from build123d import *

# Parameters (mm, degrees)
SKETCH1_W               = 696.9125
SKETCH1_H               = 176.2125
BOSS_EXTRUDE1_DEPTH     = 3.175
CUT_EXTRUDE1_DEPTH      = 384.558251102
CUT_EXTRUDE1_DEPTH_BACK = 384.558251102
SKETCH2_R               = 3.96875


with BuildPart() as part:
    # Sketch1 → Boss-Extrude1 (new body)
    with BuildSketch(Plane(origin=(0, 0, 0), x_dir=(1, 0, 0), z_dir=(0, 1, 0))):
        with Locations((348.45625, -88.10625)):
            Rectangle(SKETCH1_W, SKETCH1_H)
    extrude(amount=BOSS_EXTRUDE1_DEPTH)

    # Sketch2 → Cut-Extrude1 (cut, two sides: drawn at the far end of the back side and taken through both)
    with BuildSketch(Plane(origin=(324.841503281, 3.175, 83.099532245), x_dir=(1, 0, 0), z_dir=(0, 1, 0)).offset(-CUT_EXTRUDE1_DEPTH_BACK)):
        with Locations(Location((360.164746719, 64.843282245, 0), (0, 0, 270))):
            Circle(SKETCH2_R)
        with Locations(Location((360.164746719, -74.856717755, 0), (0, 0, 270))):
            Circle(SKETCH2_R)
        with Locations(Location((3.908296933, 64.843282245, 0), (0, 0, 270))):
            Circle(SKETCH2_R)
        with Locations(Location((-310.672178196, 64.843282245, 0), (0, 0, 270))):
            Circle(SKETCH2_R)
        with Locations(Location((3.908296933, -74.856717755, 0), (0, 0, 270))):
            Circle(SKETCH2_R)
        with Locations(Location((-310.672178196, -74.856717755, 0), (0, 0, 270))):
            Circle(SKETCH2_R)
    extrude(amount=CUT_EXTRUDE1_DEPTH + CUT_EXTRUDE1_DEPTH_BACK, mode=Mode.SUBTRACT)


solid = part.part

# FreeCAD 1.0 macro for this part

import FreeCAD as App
import Part
import Sketcher
Q = App.Units.Quantity

doc = App.newDocument("Part")
body = doc.addObject("PartDesign::Body", "Body")

# Sketch on XZ plane
sketch1 = body.newObject("Sketcher::SketchObject", "Sketch")
sketch1.AttachmentSupport = (doc.getObject("XZ_Plane"), [""])
sketch1.MapMode = "FlatFace"
sketch1.addGeometry([
    Part.LineSegment(App.Vector(0, 0, 0), App.Vector(0, 176, 0)),
    Part.LineSegment(App.Vector(0, 176, 0), App.Vector(697, 176, 0)),
    Part.LineSegment(App.Vector(697, 176, 0), App.Vector(697, 0, 0)),
    Part.LineSegment(App.Vector(697, 0, 0), App.Vector(0, 0, 0)),
], False)
sketch1.addConstraint([
    Sketcher.Constraint("Coincident", 0, 2, 1, 1),
    Sketcher.Constraint("Coincident", 1, 2, 2, 1),
    Sketcher.Constraint("Coincident", 2, 2, 3, 1),
    Sketcher.Constraint("Coincident", 3, 2, 0, 1),
    Sketcher.Constraint("Vertical", 0),
    Sketcher.Constraint("Horizontal", 1),
    Sketcher.Constraint("Vertical", 2),
    Sketcher.Constraint("Horizontal", 3),
    Sketcher.Constraint("Coincident", 3, 2, -1, 1),
    Sketcher.Constraint("DistanceX", 1, 1, 1, 2, Q("27.4375 in")),
    Sketcher.Constraint("DistanceY", 0, 1, 0, 2, Q("6.9375 in")),
])
pad1 = body.newObject("PartDesign::Pad", "Pad")
pad1.Profile = sketch1
pad1.Length = Q("0.125 in")
pad1.Reversed = True

# Sketch on XZ plane
sketch2 = body.newObject("Sketcher::SketchObject", "Sketch001")
sketch2.AttachmentSupport = (doc.getObject("XZ_Plane"), [""])
sketch2.MapMode = "FlatFace"
sketch2.AttachmentOffset = App.Placement(App.Vector(0, 0, -0.125 * 25.4), App.Rotation())
sketch2.addGeometry([
    Part.Circle(App.Vector(685, 18.3, 0), App.Vector(0, 0, 1), 4),  # 0
    Part.Circle(App.Vector(685, 158, 0), App.Vector(0, 0, 1), 4),  # 1
    Part.Circle(App.Vector(328.7, 18.3, 0), App.Vector(0, 0, 1), 4),  # 2
    Part.Circle(App.Vector(14.2, 18.3, 0), App.Vector(0, 0, 1), 4),  # 3
    Part.Circle(App.Vector(328.7, 158, 0), App.Vector(0, 0, 1), 4),  # 4
    Part.Circle(App.Vector(14.2, 158, 0), App.Vector(0, 0, 1), 4),  # 5
], False)
sketch2.addConstraint([
    Sketcher.Constraint("Equal", 0, 1),
    Sketcher.Constraint("Equal", 1, 2),
    Sketcher.Constraint("Equal", 2, 3),
    Sketcher.Constraint("Equal", 3, 4),
    Sketcher.Constraint("Equal", 4, 5),
    Sketcher.Constraint("Horizontal", 0, 3, 2, 3),
    Sketcher.Constraint("Horizontal", 2, 3, 3, 3),
    Sketcher.Constraint("Horizontal", 1, 3, 4, 3),
    Sketcher.Constraint("Horizontal", 4, 3, 5, 3),
    Sketcher.Constraint("Vertical", 0, 3, 1, 3),
    Sketcher.Constraint("Vertical", 2, 3, 4, 3),
    Sketcher.Constraint("Vertical", 3, 3, 5, 3),
    Sketcher.Constraint("Diameter", 0, Q("0.3125 in")),
    Sketcher.Constraint("DistanceY", 0, 3, 1, 3, Q("5.5 in")),
    Sketcher.Constraint("DistanceX", -1, 1, 0, 3, Q("26.96875 in")),
    Sketcher.Constraint("DistanceY", -1, 1, 0, 3, Q("0.71875 in")),
    Sketcher.Constraint("DistanceX", -1, 1, 2, 3, 328.7498),
    Sketcher.Constraint("DistanceX", -1, 1, 3, 3, 14.169325),
])
pocket1 = body.newObject("PartDesign::Pocket", "Pocket")
pocket1.Profile = sketch2
pocket1.Type = "ThroughAll"
pocket1.Midplane = True

doc.recompute()
